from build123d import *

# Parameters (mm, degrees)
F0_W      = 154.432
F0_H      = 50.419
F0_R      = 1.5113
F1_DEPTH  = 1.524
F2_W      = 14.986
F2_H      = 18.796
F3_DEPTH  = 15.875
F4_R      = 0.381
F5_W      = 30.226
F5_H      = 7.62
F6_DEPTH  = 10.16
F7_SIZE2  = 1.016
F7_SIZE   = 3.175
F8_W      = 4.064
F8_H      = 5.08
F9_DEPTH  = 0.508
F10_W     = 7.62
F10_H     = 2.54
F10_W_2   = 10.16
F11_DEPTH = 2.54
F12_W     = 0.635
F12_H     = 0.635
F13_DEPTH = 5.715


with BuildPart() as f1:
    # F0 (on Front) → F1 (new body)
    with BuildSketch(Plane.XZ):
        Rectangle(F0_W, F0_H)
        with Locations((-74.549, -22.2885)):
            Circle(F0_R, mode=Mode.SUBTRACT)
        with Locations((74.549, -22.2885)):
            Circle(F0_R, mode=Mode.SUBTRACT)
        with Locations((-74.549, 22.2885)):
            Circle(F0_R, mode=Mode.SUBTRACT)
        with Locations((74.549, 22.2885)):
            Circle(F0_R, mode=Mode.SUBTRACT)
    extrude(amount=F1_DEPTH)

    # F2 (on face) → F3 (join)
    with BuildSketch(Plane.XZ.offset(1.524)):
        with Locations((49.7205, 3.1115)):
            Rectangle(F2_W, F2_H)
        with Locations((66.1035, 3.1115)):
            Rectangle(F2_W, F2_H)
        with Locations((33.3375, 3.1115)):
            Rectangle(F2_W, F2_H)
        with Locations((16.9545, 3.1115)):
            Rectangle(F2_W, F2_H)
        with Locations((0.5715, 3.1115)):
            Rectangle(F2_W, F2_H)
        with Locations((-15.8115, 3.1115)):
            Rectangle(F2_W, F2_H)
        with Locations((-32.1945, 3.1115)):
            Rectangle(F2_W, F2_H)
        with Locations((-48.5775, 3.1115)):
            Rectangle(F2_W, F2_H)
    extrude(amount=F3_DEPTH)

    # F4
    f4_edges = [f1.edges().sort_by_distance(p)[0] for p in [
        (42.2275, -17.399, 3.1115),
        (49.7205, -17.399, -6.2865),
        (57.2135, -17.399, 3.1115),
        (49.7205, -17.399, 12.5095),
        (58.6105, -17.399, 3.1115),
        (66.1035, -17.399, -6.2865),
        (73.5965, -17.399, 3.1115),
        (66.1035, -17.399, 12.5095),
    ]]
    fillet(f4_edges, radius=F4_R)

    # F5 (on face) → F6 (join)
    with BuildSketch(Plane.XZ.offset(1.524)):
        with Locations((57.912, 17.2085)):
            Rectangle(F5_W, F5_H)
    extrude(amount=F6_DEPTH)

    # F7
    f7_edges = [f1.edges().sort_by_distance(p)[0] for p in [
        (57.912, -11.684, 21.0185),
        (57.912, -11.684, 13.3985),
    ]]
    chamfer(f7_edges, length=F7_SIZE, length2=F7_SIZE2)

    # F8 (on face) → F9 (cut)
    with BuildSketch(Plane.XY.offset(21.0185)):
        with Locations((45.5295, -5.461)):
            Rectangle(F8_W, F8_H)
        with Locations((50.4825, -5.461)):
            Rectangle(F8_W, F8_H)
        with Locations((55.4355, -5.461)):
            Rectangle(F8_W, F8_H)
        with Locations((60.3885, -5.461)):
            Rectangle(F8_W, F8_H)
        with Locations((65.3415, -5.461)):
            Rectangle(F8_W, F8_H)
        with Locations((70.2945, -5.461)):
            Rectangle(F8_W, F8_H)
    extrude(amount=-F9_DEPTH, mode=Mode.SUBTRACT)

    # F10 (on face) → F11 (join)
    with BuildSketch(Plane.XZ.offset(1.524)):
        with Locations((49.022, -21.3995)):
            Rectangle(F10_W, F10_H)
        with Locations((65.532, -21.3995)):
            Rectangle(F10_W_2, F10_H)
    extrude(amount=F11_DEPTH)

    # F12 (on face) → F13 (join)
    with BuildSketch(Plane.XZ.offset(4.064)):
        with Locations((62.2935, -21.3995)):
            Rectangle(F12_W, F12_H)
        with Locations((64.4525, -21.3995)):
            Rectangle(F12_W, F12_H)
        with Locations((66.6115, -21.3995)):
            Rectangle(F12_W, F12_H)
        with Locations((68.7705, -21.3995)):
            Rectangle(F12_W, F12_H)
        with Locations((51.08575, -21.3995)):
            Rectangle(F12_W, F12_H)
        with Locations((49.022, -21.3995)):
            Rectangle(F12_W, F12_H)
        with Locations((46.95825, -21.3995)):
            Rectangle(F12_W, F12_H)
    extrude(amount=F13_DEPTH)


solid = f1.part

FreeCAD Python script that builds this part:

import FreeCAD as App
import Part
import Sketcher
Q = App.Units.Quantity


def edges_at(feature, points):
    """Names of the edges that pass closest to the given points."""
    edges = feature.Shape.Edges
    near = lambda p: min(range(len(edges)), key=lambda i: edges[i].distToShape(Part.Vertex(*p))[0])
    return sorted({f"Edge{near(p) + 1}" for p in points})


def add_polygon(sketch, points):
    """Adds a closed chain of lines whose ends are joined by coincident constraints."""
    first, n = sketch.GeometryCount, len(points)
    for a, b in zip(points, points[1:] + points[:1]):
        sketch.addGeometry(Part.LineSegment(App.Vector(*a, 0), App.Vector(*b, 0)), False)
    for i in range(n):
        sketch.addConstraint(Sketcher.Constraint("Coincident", first + i, 2, first + (i + 1) % n, 1))

doc = App.newDocument("Part")
params = doc.addObject("Spreadsheet::Sheet", "Params")
for row, (alias, value) in enumerate([
    ("sketch1_diameter", "0.119 in"),
    ("sketch1_width", "6.08 in"),
    ("sketch1_height", "1.985 in"),
    ("pad1_length", "0.06 in"),
    ("sketch2_width", "0.59 in"),
    ("sketch2_height", "0.74 in"),
    ("pad2_length", "0.625 in"),
    ("fillet_radius", "0.015 in"),
    ("sketch3_height", "0.3 in"),
    ("sketch3_width", "1.19 in"),
    ("pad3_length", "0.4 in"),
    ("chamfer_size", "0.125 in"),
    ("chamfer_size2", "0.04 in"),
    ("sketch4_height", "0.2 in"),
    ("sketch4_width", "0.16 in"),
    ("pocket1_length", "0.02 in"),
    ("sketch5_width", "0.3 in"),
    ("sketch5_width2", "0.4 in"),
    ("sketch5_height", "0.1 in"),
    ("pad4_length", "0.1 in"),
    ("sketch6_width", "0.025 in"),
    ("pad5_length", "0.225 in"),
], start=1):
    params.set(f"A{row}", alias)
    params.set(f"B{row}", "=" + value)
    params.setAlias(f"B{row}", alias)

body = doc.addObject("PartDesign::Body", "Body")

sketch1 = body.newObject("Sketcher::SketchObject", "Sketch")
sketch1.AttachmentSupport = (doc.getObject("XZ_Plane"), [""])
sketch1.MapMode = "FlatFace"
add_polygon(sketch1, [(-77.2, 25.2), (-77.2, -25.2), (77.2, -25.2), (77.2, 25.2)])
sketch1.addGeometry(Part.Circle(App.Vector(-74.5, -22.3, 0), App.Vector(0, 0, 1), 1.5), False)
sketch1.addGeometry(Part.Circle(App.Vector(74.5, -22.3, 0), App.Vector(0, 0, 1), 1.5), False)
sketch1.addGeometry(Part.Circle(App.Vector(-74.5, 22.3, 0), App.Vector(0, 0, 1), 1.5), False)
sketch1.addGeometry(Part.Circle(App.Vector(74.5, 22.3, 0), App.Vector(0, 0, 1), 1.5), False)
sketch1.addConstraint([
    Sketcher.Constraint("Vertical", 0),
    Sketcher.Constraint("Horizontal", 1),
    Sketcher.Constraint("Vertical", 2),
    Sketcher.Constraint("Horizontal", 3),
    Sketcher.Constraint("Equal", 4, 5),
    Sketcher.Constraint("Equal", 5, 6),
    Sketcher.Constraint("Equal", 6, 7),
    Sketcher.Constraint("Symmetric", 5, 3, 6, 3, -1, 1),
    Sketcher.Constraint("Symmetric", 4, 3, 7, 3, -1, 1),
    Sketcher.Constraint("Symmetric", 0, 2, 2, 2, -1, 1),
    Sketcher.Constraint("Symmetric", 4, 3, 5, 3, -2),
    Sketcher.Constraint("Diameter", 4, Q("0.119 in")),
    Sketcher.Constraint("DistanceX", 1, 1, 1, 2, Q("6.08 in")),
    Sketcher.Constraint("DistanceY", 0, 2, 0, 1, Q("1.985 in")),
    Sketcher.Constraint("DistanceX", 4, 3, 5, 3, Q("5.87 in")),
    Sketcher.Constraint("DistanceY", 0, 2, 6, 3, Q("1.87 in")),
])
sketch1.setExpression("Constraints[15]", "Params.sketch1_diameter")
sketch1.setExpression("Constraints[16]", "Params.sketch1_width")
sketch1.setExpression("Constraints[17]", "Params.sketch1_height")
pad1 = body.newObject("PartDesign::Pad", "Pad")
pad1.Profile = sketch1
pad1.setExpression("Length", "Params.pad1_length")

sketch2 = body.newObject("Sketcher::SketchObject", "Sketch001")
sketch2.AttachmentSupport = (doc.getObject("XZ_Plane"), [""])
sketch2.MapMode = "FlatFace"
sketch2.AttachmentOffset = App.Placement(App.Vector(0, 0, 0.06 * 25.4), App.Rotation())
add_polygon(sketch2, [(42, 13), (42, -6), (57, -6), (57, 13)])
add_polygon(sketch2, [(59, 13), (59, -6), (74, -6), (74, 13)])
add_polygon(sketch2, [(26, 13), (26, -6), (41, -6), (41, 13)])
add_polygon(sketch2, [(9, 13), (9, -6), (24, -6), (24, 13)])
add_polygon(sketch2, [(-7, 13), (-7, -6), (8, -6), (8, 13)])
add_polygon(sketch2, [(-23, 13), (-23, -6), (-8, -6), (-8, 13)])
add_polygon(sketch2, [(-40, 13), (-40, -6), (-25, -6), (-25, 13)])
add_polygon(sketch2, [(-56, 13), (-56, -6), (-41, -6), (-41, 13)])
sketch2.addConstraint([
    Sketcher.Constraint("Vertical", 0),
    Sketcher.Constraint("Horizontal", 1),
    Sketcher.Constraint("Vertical", 2),
    Sketcher.Constraint("Horizontal", 3),
    Sketcher.Constraint("Vertical", 4),
    Sketcher.Constraint("Horizontal", 5),
    Sketcher.Constraint("Vertical", 6),
    Sketcher.Constraint("Horizontal", 7),
    Sketcher.Constraint("Vertical", 8),
    Sketcher.Constraint("Horizontal", 9),
    Sketcher.Constraint("Vertical", 10),
    Sketcher.Constraint("Horizontal", 11),
    Sketcher.Constraint("Vertical", 12),
    Sketcher.Constraint("Horizontal", 13),
    Sketcher.Constraint("Vertical", 14),
    Sketcher.Constraint("Horizontal", 15),
    Sketcher.Constraint("Vertical", 16),
    Sketcher.Constraint("Horizontal", 17),
    Sketcher.Constraint("Vertical", 18),
    Sketcher.Constraint("Horizontal", 19),
    Sketcher.Constraint("Vertical", 20),
    Sketcher.Constraint("Horizontal", 21),
    Sketcher.Constraint("Vertical", 22),
    Sketcher.Constraint("Horizontal", 23),
    Sketcher.Constraint("Vertical", 24),
    Sketcher.Constraint("Horizontal", 25),
    Sketcher.Constraint("Vertical", 26),
    Sketcher.Constraint("Horizontal", 27),
    Sketcher.Constraint("Vertical", 28),
    Sketcher.Constraint("Horizontal", 29),
    Sketcher.Constraint("Vertical", 30),
    Sketcher.Constraint("Horizontal", 31),
    Sketcher.Constraint("Horizontal", 1, 2, 4, 2),
    Sketcher.Constraint("Horizontal", 3, 2, 6, 2),
    Sketcher.Constraint("Horizontal", 5, 2, 8, 2),
    Sketcher.Constraint("Horizontal", 7, 2, 10, 2),
    Sketcher.Constraint("Horizontal", 9, 2, 12, 2),
    Sketcher.Constraint("Horizontal", 11, 2, 14, 2),
    Sketcher.Constraint("Horizontal", 13, 2, 16, 2),
    Sketcher.Constraint("Horizontal", 15, 2, 18, 2),
    Sketcher.Constraint("Horizontal", 17, 2, 20, 2),
    Sketcher.Constraint("Horizontal", 19, 2, 22, 2),
    Sketcher.Constraint("Horizontal", 21, 2, 24, 2),
    Sketcher.Constraint("Horizontal", 23, 2, 26, 2),
    Sketcher.Constraint("Horizontal", 25, 2, 28, 2),
    Sketcher.Constraint("Horizontal", 27, 2, 30, 2),
    Sketcher.Constraint("Equal", 3, 5),
    Sketcher.Constraint("Equal", 7, 9),
    Sketcher.Constraint("Equal", 11, 13),
    Sketcher.Constraint("Equal", 15, 17),
    Sketcher.Constraint("Equal", 19, 21),
    Sketcher.Constraint("Equal", 23, 25),
    Sketcher.Constraint("Equal", 27, 29),
    Sketcher.Constraint("DistanceX", 1, 1, 1, 2, Q("0.59 in")),
    Sketcher.Constraint("DistanceY", 0, 2, 0, 1, Q("0.74 in")),
    Sketcher.Constraint("DistanceX", 9, 2, 4, 2, Q("0.7 in")),
    Sketcher.Constraint("DistanceX", 13, 2, 0, 2, Q("0.7 in")),
    Sketcher.Constraint("DistanceX", 17, 2, 8, 2, Q("0.7 in")),
    Sketcher.Constraint("DistanceX", 21, 2, 12, 2, Q("0.7 in")),
    Sketcher.Constraint("DistanceX", 25, 2, 16, 2, Q("0.7 in")),
    Sketcher.Constraint("DistanceX", 29, 2, 20, 2, Q("0.7 in")),
    Sketcher.Constraint("DistanceX", 24, 2, -1, 1, Q("1.5625 in")),
    Sketcher.Constraint("DistanceX", 1, 2, 4, 2, Q("0.055 in")),
    Sketcher.Constraint("DistanceY", 0, 2, -1, 1, Q("0.2475 in")),
])
sketch2.setExpression("Constraints[85]", "Params.sketch2_width")
sketch2.setExpression("Constraints[86]", "Params.sketch2_height")
pad2 = body.newObject("PartDesign::Pad", "Pad001")
pad2.Profile = sketch2
pad2.setExpression("Length", "Params.pad2_length")
doc.recompute()

fillet = body.newObject("PartDesign::Fillet", "Fillet")
fillet.Base = (pad2, edges_at(pad2, [
    (42.227, -17.399, 3.111),
    (49.721, -17.399, -6.287),
    (57.214, -17.399, 3.111),
    (49.721, -17.399, 12.509),
    (58.611, -17.399, 3.111),
    (66.103, -17.399, -6.287),
    (73.597, -17.399, 3.111),
    (66.103, -17.399, 12.509),
]))
fillet.setExpression("Radius", "Params.fillet_radius")

sketch3 = body.newObject("Sketcher::SketchObject", "Sketch002")
sketch3.AttachmentSupport = (doc.getObject("XZ_Plane"), [""])
sketch3.MapMode = "FlatFace"
sketch3.AttachmentOffset = App.Placement(App.Vector(0, 0, 0.06 * 25.4), App.Rotation())
add_polygon(sketch3, [(43, 21), (43, 13), (73, 13), (73, 21)])
sketch3.addConstraint([
    Sketcher.Constraint("Vertical", 0),
    Sketcher.Constraint("Horizontal", 1),
    Sketcher.Constraint("Vertical", 2),
    Sketcher.Constraint("Horizontal", 3),
    Sketcher.Constraint("DistanceY", 0, 2, 0, 1, Q("0.3 in")),
    Sketcher.Constraint("DistanceX", 1, 1, 1, 2, Q("1.19 in")),
    Sketcher.Constraint("DistanceX", -1, 1, 0, 2, Q("1.685 in")),
    Sketcher.Constraint("DistanceY", -1, 1, 0, 2, Q("0.5275 in")),
])
sketch3.setExpression("Constraints[8]", "Params.sketch3_height")
sketch3.setExpression("Constraints[9]", "Params.sketch3_width")
pad3 = body.newObject("PartDesign::Pad", "Pad002")
pad3.Profile = sketch3
pad3.setExpression("Length", "Params.pad3_length")
doc.recompute()

chamfer = body.newObject("PartDesign::Chamfer", "Chamfer")
chamfer.Base = (pad3, edges_at(pad3, [(57.912, -11.684, 21.018), (57.912, -11.684, 13.399)]))
chamfer.ChamferType = "Two distances"
chamfer.setExpression("Size", "Params.chamfer_size")
chamfer.setExpression("Size2", "Params.chamfer_size2")

sketch4 = body.newObject("Sketcher::SketchObject", "Sketch003")
sketch4.AttachmentSupport = (doc.getObject("XY_Plane"), [""])
sketch4.MapMode = "FlatFace"
sketch4.AttachmentOffset = App.Placement(App.Vector(0, 0, 0.8275 * 25.4), App.Rotation())
add_polygon(sketch4, [(43.5, -2.9), (43.5, -8), (47.6, -8), (47.6, -2.9)])
add_polygon(sketch4, [(48.5, -2.9), (48.5, -8), (52.5, -8), (52.5, -2.9)])
add_polygon(sketch4, [(53.4, -2.9), (53.4, -8), (57.5, -8), (57.5, -2.9)])
add_polygon(sketch4, [(58.4, -2.9), (58.4, -8), (62.4, -8), (62.4, -2.9)])
add_polygon(sketch4, [(63.3, -2.9), (63.3, -8), (67.4, -8), (67.4, -2.9)])
add_polygon(sketch4, [(68.3, -2.9), (68.3, -8), (72.3, -8), (72.3, -2.9)])
sketch4.addConstraint([
    Sketcher.Constraint("Vertical", 0),
    Sketcher.Constraint("Horizontal", 1),
    Sketcher.Constraint("Vertical", 2),
    Sketcher.Constraint("Horizontal", 3),
    Sketcher.Constraint("Vertical", 4),
    Sketcher.Constraint("Horizontal", 5),
    Sketcher.Constraint("Vertical", 6),
    Sketcher.Constraint("Horizontal", 7),
    Sketcher.Constraint("Vertical", 8),
    Sketcher.Constraint("Horizontal", 9),
    Sketcher.Constraint("Vertical", 10),
    Sketcher.Constraint("Horizontal", 11),
    Sketcher.Constraint("Vertical", 12),
    Sketcher.Constraint("Horizontal", 13),
    Sketcher.Constraint("Vertical", 14),
    Sketcher.Constraint("Horizontal", 15),
    Sketcher.Constraint("Vertical", 16),
    Sketcher.Constraint("Horizontal", 17),
    Sketcher.Constraint("Vertical", 18),
    Sketcher.Constraint("Horizontal", 19),
    Sketcher.Constraint("Vertical", 20),
    Sketcher.Constraint("Horizontal", 21),
    Sketcher.Constraint("Vertical", 22),
    Sketcher.Constraint("Horizontal", 23),
    Sketcher.Constraint("Horizontal", 1, 2, 4, 2),
    Sketcher.Constraint("Horizontal", 3, 2, 6, 2),
    Sketcher.Constraint("Horizontal", 5, 2, 8, 2),
    Sketcher.Constraint("Horizontal", 7, 2, 10, 2),
    Sketcher.Constraint("Horizontal", 9, 2, 12, 2),
    Sketcher.Constraint("Horizontal", 11, 2, 14, 2),
    Sketcher.Constraint("Horizontal", 13, 2, 16, 2),
    Sketcher.Constraint("Horizontal", 15, 2, 18, 2),
    Sketcher.Constraint("Horizontal", 17, 2, 20, 2),
    Sketcher.Constraint("Horizontal", 19, 2, 22, 2),
    Sketcher.Constraint("Equal", 3, 5),
    Sketcher.Constraint("Equal", 7, 9),
    Sketcher.Constraint("Equal", 11, 13),
    Sketcher.Constraint("Equal", 15, 17),
    Sketcher.Constraint("Equal", 19, 21),
    Sketcher.Constraint("DistanceY", 0, 2, 0, 1, Q("0.2 in")),
    Sketcher.Constraint("DistanceX", 1, 1, 1, 2, Q("0.16 in")),
    Sketcher.Constraint("DistanceX", 1, 2, 8, 2, Q("0.23 in")),
    Sketcher.Constraint("DistanceX", 5, 2, 12, 2, Q("0.23 in")),
    Sketcher.Constraint("DistanceX", 9, 2, 16, 2, Q("0.23 in")),
    Sketcher.Constraint("DistanceX", 13, 2, 20, 2, Q("0.23 in")),
    Sketcher.Constraint("DistanceY", 0, 2, -1, 1, Q("0.315 in")),
    Sketcher.Constraint("DistanceX", -1, 1, 20, 2, Q("2.6875 in")),
    Sketcher.Constraint("DistanceX", 1, 2, 4, 2, Q("0.035 in")),
])
sketch4.setExpression("Constraints[63]", "Params.sketch4_height")
sketch4.setExpression("Constraints[64]", "Params.sketch4_width")
pocket1 = body.newObject("PartDesign::Pocket", "Pocket")
pocket1.Profile = sketch4
pocket1.setExpression("Length", "Params.pocket1_length")

sketch5 = body.newObject("Sketcher::SketchObject", "Sketch004")
sketch5.AttachmentSupport = (doc.getObject("XZ_Plane"), [""])
sketch5.MapMode = "FlatFace"
sketch5.AttachmentOffset = App.Placement(App.Vector(0, 0, 0.06 * 25.4), App.Rotation())
add_polygon(sketch5, [(45.2, -20.1), (45.2, -22.7), (52.8, -22.7), (52.8, -20.1)])
add_polygon(sketch5, [(60.5, -20.1), (60.5, -22.7), (70.6, -22.7), (70.6, -20.1)])
sketch5.addConstraint([
    Sketcher.Constraint("Vertical", 0),
    Sketcher.Constraint("Horizontal", 1),
    Sketcher.Constraint("Vertical", 2),
    Sketcher.Constraint("Horizontal", 3),
    Sketcher.Constraint("Vertical", 4),
    Sketcher.Constraint("Horizontal", 5),
    Sketcher.Constraint("Vertical", 6),
    Sketcher.Constraint("Horizontal", 7),
    Sketcher.Constraint("Horizontal", 1, 2, 4, 2),
    Sketcher.Constraint("Horizontal", 3, 2, 6, 2),
    Sketcher.Constraint("DistanceX", 1, 1, 1, 2, Q("0.3 in")),
    Sketcher.Constraint("DistanceX", 5, 1, 5, 2, Q("0.4 in")),
    Sketcher.Constraint("DistanceY", 0, 2, 0, 1, Q("0.1 in")),
    Sketcher.Constraint("DistanceX", 0, 2, 5, 2, Q("1 in")),
    Sketcher.Constraint("DistanceX", -1, 1, 0, 2, Q("1.78 in")),
    Sketcher.Constraint("DistanceY", 0, 2, -1, 1, Q("0.8925 in")),
])
sketch5.setExpression("Constraints[18]", "Params.sketch5_width")
sketch5.setExpression("Constraints[19]", "Params.sketch5_width2")
sketch5.setExpression("Constraints[20]", "Params.sketch5_height")
pad4 = body.newObject("PartDesign::Pad", "Pad003")
pad4.Profile = sketch5
pad4.setExpression("Length", "Params.pad4_length")

sketch6 = body.newObject("Sketcher::SketchObject", "Sketch005")
sketch6.AttachmentSupport = (doc.getObject("XZ_Plane"), [""])
sketch6.MapMode = "FlatFace"
sketch6.AttachmentOffset = App.Placement(App.Vector(0, 0, 0.16 * 25.4), App.Rotation())
add_polygon(sketch6, [(62, -21.1), (62, -21.7), (62.6, -21.7), (62.6, -21.1)])
add_polygon(sketch6, [(64.1, -21.1), (64.1, -21.7), (64.8, -21.7), (64.8, -21.1)])
add_polygon(sketch6, [(66.3, -21.1), (66.3, -21.7), (66.9, -21.7), (66.9, -21.1)])
add_polygon(sketch6, [(68.5, -21.1), (68.5, -21.7), (69.1, -21.7), (69.1, -21.1)])
add_polygon(sketch6, [(50.8, -21.1), (50.8, -21.7), (51.4, -21.7), (51.4, -21.1)])
add_polygon(sketch6, [(48.7, -21.1), (48.7, -21.7), (49.3, -21.7), (49.3, -21.1)])
add_polygon(sketch6, [(46.6, -21.1), (46.6, -21.7), (47.3, -21.7), (47.3, -21.1)])
sketch6.addConstraint([
    Sketcher.Constraint("Vertical", 0),
    Sketcher.Constraint("Horizontal", 1),
    Sketcher.Constraint("Vertical", 2),
    Sketcher.Constraint("Horizontal", 3),
    Sketcher.Constraint("Vertical", 4),
    Sketcher.Constraint("Horizontal", 5),
    Sketcher.Constraint("Vertical", 6),
    Sketcher.Constraint("Horizontal", 7),
    Sketcher.Constraint("Vertical", 8),
    Sketcher.Constraint("Horizontal", 9),
    Sketcher.Constraint("Vertical", 10),
    Sketcher.Constraint("Horizontal", 11),
    Sketcher.Constraint("Vertical", 12),
    Sketcher.Constraint("Horizontal", 13),
    Sketcher.Constraint("Vertical", 14),
    Sketcher.Constraint("Horizontal", 15),
    Sketcher.Constraint("Vertical", 16),
    Sketcher.Constraint("Horizontal", 17),
    Sketcher.Constraint("Vertical", 18),
    Sketcher.Constraint("Horizontal", 19),
    Sketcher.Constraint("Vertical", 20),
    Sketcher.Constraint("Horizontal", 21),
    Sketcher.Constraint("Vertical", 22),
    Sketcher.Constraint("Horizontal", 23),
    Sketcher.Constraint("Vertical", 24),
    Sketcher.Constraint("Horizontal", 25),
    Sketcher.Constraint("Vertical", 26),
    Sketcher.Constraint("Horizontal", 27),
    Sketcher.Constraint("Horizontal", 1, 2, 4, 2),
    Sketcher.Constraint("Horizontal", 3, 2, 6, 2),
    Sketcher.Constraint("Horizontal", 5, 2, 8, 2),
    Sketcher.Constraint("Horizontal", 7, 2, 10, 2),
    Sketcher.Constraint("Horizontal", 9, 2, 12, 2),
    Sketcher.Constraint("Horizontal", 11, 2, 14, 2),
    Sketcher.Constraint("Horizontal", 13, 2, 16, 2),
    Sketcher.Constraint("Horizontal", 15, 2, 18, 2),
    Sketcher.Constraint("Horizontal", 17, 2, 20, 2),
    Sketcher.Constraint("Horizontal", 19, 2, 22, 2),
    Sketcher.Constraint("Horizontal", 21, 2, 24, 2),
    Sketcher.Constraint("Horizontal", 23, 2, 26, 2),
    Sketcher.Constraint("Equal", 3, 5),
    Sketcher.Constraint("Equal", 7, 9),
    Sketcher.Constraint("Equal", 11, 13),
    Sketcher.Constraint("Equal", 15, 17),
    Sketcher.Constraint("Equal", 19, 21),
    Sketcher.Constraint("Equal", 23, 25),
    Sketcher.Constraint("Equal", 27, 0),
    Sketcher.Constraint("DistanceX", 1, 1, 1, 2, Q("0.025 in")),
    Sketcher.Constraint("DistanceX", -1, 1, 0, 2, Q("2.44 in")),
    Sketcher.Constraint("DistanceY", 2, 2, -1, 1, Q("0.83 in")),
    Sketcher.Constraint("DistanceX", -1, 1, 5, 2, Q("2.55 in")),
    Sketcher.Constraint("DistanceX", -1, 1, 8, 2, Q("2.61 in")),
    Sketcher.Constraint("DistanceX", -1, 1, 13, 2, Q("2.72 in")),
    Sketcher.Constraint("DistanceX", -1, 1, 20, 2, Q("1.9175 in")),
    Sketcher.Constraint("DistanceX", 24, 2, 16, 2, Q("0.1625 in")),
    Sketcher.Constraint("DistanceX", -1, 1, 16, 2, Q("50.76825 mm")),
])
sketch6.setExpression("Constraints[75]", "Params.sketch6_width")
pad5 = body.newObject("PartDesign::Pad", "Pad004")
pad5.Profile = sketch6
pad5.setExpression("Length", "Params.pad5_length")

doc.recompute()
